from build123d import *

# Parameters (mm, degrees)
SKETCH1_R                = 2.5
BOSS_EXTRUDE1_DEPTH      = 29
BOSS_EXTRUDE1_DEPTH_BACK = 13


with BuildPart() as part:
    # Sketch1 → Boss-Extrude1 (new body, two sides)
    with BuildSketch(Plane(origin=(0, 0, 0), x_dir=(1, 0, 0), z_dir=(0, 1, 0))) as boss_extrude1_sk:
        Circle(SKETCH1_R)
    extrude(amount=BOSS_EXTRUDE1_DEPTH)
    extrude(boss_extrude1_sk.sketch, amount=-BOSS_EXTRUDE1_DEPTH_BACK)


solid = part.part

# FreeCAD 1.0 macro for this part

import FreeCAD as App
import Part
import Sketcher

doc = App.newDocument("Part")
body = doc.addObject("PartDesign::Body", "Body")

# Sketch on XZ plane
sketch1 = body.newObject("Sketcher::SketchObject", "Sketch")
sketch1.AttachmentSupport = (doc.getObject("XZ_Plane"), [""])
sketch1.MapMode = "FlatFace"
sketch1.addGeometry(Part.Circle(App.Vector(0, 0, 0), App.Vector(0, 0, 1), 2.5), False)
sketch1.addConstraint(Sketcher.Constraint("Coincident", 0, 3, -1, 1))
sketch1.addConstraint(Sketcher.Constraint("Diameter", 0, 5.0))
pad1 = body.newObject("PartDesign::Pad", "Pad")
pad1.Profile = sketch1
pad1.Type = "TwoLengths"
pad1.Length = 29
pad1.Length2 = 13
pad1.Reversed = True

doc.recompute()
